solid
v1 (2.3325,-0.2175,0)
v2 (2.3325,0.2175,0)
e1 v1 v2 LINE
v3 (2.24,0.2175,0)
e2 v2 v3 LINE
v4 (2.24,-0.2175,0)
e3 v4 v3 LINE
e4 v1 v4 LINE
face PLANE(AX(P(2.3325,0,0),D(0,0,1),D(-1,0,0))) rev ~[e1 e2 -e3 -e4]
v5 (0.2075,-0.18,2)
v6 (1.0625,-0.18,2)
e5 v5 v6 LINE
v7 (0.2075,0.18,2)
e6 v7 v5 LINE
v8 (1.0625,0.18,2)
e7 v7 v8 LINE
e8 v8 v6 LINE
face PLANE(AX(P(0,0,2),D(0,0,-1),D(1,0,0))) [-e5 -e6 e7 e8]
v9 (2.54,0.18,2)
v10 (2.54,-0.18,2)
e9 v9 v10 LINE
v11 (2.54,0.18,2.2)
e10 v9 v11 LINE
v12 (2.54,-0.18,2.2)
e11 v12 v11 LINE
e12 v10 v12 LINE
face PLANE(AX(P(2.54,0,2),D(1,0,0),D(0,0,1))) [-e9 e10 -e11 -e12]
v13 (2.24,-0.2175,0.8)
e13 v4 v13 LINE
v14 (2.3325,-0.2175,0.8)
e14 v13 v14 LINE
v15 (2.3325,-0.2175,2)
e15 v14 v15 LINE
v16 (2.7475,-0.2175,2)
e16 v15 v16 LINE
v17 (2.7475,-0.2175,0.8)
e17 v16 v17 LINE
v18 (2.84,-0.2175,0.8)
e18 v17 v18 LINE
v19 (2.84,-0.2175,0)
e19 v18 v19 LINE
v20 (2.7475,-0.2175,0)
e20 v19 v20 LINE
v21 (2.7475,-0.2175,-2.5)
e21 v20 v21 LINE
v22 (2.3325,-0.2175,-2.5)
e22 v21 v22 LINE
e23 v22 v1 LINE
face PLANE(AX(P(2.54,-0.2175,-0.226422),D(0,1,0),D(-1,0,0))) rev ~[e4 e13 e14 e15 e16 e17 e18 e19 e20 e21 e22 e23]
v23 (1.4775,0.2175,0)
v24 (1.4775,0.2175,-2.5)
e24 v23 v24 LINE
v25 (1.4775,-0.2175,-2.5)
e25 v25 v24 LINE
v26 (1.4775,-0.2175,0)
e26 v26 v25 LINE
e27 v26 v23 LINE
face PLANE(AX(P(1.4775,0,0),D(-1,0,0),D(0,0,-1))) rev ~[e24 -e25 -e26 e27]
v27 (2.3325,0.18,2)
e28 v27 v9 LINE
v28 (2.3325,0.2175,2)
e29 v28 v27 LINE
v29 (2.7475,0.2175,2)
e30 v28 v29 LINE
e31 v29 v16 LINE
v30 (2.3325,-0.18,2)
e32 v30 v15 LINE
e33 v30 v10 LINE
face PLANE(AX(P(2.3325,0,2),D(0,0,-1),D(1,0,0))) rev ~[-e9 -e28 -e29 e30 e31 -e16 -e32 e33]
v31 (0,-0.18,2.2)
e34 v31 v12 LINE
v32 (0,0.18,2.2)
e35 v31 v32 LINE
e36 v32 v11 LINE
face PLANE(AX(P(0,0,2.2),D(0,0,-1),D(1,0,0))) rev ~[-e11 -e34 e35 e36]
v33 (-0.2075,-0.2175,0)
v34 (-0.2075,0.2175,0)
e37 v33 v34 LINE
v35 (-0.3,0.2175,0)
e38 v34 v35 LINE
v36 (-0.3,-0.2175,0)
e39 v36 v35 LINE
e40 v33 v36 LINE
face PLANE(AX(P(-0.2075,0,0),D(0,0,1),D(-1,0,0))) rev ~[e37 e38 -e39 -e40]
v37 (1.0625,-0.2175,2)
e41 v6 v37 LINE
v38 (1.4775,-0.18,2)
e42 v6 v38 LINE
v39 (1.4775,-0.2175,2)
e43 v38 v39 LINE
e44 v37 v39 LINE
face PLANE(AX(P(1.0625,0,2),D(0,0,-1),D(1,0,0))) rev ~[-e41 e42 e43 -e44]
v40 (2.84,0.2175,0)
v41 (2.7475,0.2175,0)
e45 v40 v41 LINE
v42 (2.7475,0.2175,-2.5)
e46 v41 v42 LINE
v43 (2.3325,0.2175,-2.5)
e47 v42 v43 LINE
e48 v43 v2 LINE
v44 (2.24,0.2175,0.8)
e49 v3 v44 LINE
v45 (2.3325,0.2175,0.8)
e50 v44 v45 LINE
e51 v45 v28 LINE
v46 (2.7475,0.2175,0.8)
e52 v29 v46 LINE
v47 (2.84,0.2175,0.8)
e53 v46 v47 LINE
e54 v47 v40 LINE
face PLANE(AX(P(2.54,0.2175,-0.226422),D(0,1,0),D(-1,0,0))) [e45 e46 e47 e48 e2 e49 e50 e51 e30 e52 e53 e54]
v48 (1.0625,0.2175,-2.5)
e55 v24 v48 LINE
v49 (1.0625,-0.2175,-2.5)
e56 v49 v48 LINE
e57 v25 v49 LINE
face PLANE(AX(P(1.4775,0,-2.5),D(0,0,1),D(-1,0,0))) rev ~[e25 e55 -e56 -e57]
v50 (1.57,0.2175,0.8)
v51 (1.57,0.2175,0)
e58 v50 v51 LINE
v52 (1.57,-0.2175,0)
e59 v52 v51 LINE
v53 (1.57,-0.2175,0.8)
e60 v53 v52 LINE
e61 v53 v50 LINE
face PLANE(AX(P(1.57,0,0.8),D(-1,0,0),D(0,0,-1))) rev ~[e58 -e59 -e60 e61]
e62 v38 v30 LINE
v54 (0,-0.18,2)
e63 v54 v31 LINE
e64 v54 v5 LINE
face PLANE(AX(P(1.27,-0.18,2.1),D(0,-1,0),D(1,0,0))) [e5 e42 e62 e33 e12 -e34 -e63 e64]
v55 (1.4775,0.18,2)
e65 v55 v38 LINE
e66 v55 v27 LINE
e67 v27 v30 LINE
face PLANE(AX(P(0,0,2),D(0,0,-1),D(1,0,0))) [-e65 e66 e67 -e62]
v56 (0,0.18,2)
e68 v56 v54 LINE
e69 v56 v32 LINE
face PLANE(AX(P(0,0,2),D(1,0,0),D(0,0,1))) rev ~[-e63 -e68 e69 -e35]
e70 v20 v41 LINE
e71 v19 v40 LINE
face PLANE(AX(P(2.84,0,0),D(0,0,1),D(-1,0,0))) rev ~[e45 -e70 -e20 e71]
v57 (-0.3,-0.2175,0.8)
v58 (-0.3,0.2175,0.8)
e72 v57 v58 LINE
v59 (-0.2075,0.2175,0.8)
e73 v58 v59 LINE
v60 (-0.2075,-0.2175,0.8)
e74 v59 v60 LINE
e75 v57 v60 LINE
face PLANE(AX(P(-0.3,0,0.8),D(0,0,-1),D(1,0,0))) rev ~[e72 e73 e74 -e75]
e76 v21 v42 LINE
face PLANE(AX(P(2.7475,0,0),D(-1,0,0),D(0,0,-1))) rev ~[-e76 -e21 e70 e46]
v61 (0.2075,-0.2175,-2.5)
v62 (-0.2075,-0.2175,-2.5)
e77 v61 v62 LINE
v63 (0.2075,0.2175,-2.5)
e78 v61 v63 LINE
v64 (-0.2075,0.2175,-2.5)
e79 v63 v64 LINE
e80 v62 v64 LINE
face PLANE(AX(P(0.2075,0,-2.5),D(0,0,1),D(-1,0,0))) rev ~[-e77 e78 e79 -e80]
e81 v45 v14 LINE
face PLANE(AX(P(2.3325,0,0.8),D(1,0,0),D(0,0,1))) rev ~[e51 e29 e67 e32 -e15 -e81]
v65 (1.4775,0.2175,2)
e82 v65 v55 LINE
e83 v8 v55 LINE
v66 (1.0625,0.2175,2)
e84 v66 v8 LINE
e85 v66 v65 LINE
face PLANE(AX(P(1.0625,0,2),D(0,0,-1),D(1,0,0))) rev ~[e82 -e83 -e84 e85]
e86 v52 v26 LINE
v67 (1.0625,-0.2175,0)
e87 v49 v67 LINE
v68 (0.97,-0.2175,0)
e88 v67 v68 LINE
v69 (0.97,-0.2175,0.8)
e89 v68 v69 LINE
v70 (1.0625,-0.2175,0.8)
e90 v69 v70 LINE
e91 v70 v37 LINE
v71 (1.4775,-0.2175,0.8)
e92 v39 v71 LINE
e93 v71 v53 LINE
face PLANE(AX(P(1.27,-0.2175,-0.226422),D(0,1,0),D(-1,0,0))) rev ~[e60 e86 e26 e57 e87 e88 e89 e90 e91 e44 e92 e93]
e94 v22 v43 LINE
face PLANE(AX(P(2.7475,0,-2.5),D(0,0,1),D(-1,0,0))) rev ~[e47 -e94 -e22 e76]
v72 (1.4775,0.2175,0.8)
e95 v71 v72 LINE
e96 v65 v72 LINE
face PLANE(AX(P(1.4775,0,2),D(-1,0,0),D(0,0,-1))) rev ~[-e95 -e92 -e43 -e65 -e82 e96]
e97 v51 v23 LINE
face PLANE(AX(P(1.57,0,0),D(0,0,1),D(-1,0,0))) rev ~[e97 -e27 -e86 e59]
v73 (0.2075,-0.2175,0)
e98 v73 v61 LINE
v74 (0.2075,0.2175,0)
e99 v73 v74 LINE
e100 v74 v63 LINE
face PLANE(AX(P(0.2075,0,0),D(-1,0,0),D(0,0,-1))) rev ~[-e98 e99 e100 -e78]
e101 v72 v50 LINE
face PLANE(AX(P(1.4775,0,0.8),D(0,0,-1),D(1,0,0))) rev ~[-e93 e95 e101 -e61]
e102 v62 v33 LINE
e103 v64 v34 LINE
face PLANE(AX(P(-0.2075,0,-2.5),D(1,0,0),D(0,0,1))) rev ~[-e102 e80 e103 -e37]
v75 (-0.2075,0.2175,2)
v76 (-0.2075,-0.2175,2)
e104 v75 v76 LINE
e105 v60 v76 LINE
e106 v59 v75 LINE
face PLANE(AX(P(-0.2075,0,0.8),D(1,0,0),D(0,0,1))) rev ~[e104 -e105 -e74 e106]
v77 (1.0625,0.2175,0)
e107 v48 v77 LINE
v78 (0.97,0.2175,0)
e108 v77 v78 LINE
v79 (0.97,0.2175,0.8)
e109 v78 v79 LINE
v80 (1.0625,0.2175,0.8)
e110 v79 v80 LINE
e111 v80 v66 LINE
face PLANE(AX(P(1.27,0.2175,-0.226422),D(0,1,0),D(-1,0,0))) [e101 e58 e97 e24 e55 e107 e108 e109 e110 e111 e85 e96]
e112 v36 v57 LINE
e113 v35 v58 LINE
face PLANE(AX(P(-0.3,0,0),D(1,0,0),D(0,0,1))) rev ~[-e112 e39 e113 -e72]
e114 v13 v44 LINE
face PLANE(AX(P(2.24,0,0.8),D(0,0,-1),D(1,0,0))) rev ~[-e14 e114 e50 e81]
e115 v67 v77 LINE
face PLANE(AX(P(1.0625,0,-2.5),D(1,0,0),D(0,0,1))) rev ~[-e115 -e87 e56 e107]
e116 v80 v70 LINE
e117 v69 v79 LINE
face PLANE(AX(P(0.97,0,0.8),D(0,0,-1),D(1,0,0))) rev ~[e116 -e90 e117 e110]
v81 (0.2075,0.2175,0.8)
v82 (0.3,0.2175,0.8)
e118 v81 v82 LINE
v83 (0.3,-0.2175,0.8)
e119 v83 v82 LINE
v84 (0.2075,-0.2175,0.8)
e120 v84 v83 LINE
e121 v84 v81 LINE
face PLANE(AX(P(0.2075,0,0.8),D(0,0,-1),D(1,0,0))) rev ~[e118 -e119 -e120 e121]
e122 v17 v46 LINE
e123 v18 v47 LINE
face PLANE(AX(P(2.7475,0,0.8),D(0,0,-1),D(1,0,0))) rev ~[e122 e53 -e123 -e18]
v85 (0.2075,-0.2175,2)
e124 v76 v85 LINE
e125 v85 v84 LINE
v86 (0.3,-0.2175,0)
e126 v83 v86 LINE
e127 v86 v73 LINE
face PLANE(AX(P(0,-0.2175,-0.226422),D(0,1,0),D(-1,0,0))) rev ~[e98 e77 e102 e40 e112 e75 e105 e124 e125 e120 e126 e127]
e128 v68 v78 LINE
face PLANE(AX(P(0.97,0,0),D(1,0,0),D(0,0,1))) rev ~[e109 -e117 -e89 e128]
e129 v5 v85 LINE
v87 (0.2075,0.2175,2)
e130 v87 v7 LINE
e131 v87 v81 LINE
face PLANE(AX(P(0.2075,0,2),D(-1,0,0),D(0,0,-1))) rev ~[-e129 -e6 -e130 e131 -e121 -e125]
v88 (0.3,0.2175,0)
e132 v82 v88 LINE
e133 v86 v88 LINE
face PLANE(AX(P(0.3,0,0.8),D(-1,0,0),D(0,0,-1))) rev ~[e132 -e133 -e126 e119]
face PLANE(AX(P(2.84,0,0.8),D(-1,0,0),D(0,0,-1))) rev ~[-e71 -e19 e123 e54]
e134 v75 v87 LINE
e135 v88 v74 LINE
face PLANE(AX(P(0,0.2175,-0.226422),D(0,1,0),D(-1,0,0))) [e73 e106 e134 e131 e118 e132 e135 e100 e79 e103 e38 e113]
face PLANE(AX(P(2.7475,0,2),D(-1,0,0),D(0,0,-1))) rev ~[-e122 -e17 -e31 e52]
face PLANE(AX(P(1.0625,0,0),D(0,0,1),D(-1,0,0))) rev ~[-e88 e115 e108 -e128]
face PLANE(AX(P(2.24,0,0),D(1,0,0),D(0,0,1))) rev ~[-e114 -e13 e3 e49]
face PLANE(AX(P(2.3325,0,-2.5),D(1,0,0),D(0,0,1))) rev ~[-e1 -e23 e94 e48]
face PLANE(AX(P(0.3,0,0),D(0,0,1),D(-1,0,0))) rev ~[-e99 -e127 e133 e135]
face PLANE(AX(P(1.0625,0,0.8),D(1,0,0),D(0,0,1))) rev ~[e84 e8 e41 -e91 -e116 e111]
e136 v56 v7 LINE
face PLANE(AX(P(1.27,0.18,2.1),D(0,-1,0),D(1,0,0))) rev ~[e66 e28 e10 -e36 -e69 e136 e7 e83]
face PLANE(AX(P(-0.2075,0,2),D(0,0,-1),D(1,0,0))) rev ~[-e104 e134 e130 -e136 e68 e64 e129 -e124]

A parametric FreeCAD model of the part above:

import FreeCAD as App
import Part
import Sketcher

V = App.Vector

doc = App.newDocument("Part")
body = doc.addObject("PartDesign::Body", "Body")

sketch1 = body.newObject("Sketcher::SketchObject", "Sketch")
sketch1.AttachmentSupport = (doc.getObject("XZ_Plane"), [""])
sketch1.MapMode = "FlatFace"
sketch1.addGeometry([
    Part.LineSegment(V(0, 2.2, 0), V(0, 2, 0)),
    Part.LineSegment(V(0, 2, 0), V(2.54, 2, 0)),
    Part.LineSegment(V(2.54, 2, 0), V(2.54, 2.2, 0)),
    Part.LineSegment(V(2.54, 2.2, 0), V(0, 2.2, 0)),
], False)
sketch1.addConstraint([
    Sketcher.Constraint("Coincident", 0, 2, 1, 1),
    Sketcher.Constraint("Coincident", 1, 2, 2, 1),
    Sketcher.Constraint("Coincident", 2, 2, 3, 1),
    Sketcher.Constraint("Coincident", 3, 2, 0, 1),
    Sketcher.Constraint("Vertical", 0),
    Sketcher.Constraint("Horizontal", 1),
    Sketcher.Constraint("Vertical", 2),
    Sketcher.Constraint("Horizontal", 3),
    Sketcher.Constraint("PointOnObject", 0, 2, -2),
    Sketcher.Constraint("DistanceY", 0, 2, 0, 1, 0.2),
    Sketcher.Constraint("DistanceY", -1, 1, 0, 2, 2.0),
    Sketcher.Constraint("DistanceX", 1, 1, 1, 2, 2.54),
])
pad1 = body.newObject("PartDesign::Pad", "Pad")
pad1.Profile = sketch1
pad1.Length = 0.36
pad1.Midplane = True

sketch2 = body.newObject("Sketcher::SketchObject", "Sketch001")
sketch2.AttachmentSupport = (doc.getObject("XZ_Plane"), [""])
sketch2.MapMode = "FlatFace"
sketch2.addGeometry([
    Part.LineSegment(V(0.21, 0.8, 0), V(0.21, 2, 0)),
    Part.LineSegment(V(0.21, 2, 0), V(-0.21, 2, 0)),
    Part.LineSegment(V(-0.21, 2, 0), V(-0.21, 0.8, 0)),
    Part.LineSegment(V(-0.21, 0.8, 0), V(-0.3, 0.8, 0)),
    Part.LineSegment(V(-0.3, 0.8, 0), V(-0.3, 0, 0)),
    Part.LineSegment(V(-0.3, 0, 0), V(-0.21, 0, 0)),
    Part.LineSegment(V(-0.21, 0, 0), V(-0.21, -2.5, 0)),
    Part.LineSegment(V(-0.21, -2.5, 0), V(0.21, -2.5, 0)),
    Part.LineSegment(V(0.21, -2.5, 0), V(0.21, 0, 0)),
    Part.LineSegment(V(0.21, 0, 0), V(0.3, 0, 0)),
    Part.LineSegment(V(0.3, 0, 0), V(0.3, 0.8, 0)),
    Part.LineSegment(V(0.3, 0.8, 0), V(0.21, 0.8, 0)),
], False)
sketch2.addConstraint([
    Sketcher.Constraint("Coincident", 0, 2, 1, 1),
    Sketcher.Constraint("Coincident", 1, 2, 2, 1),
    Sketcher.Constraint("Coincident", 2, 2, 3, 1),
    Sketcher.Constraint("Coincident", 3, 2, 4, 1),
    Sketcher.Constraint("Coincident", 4, 2, 5, 1),
    Sketcher.Constraint("Coincident", 5, 2, 6, 1),
    Sketcher.Constraint("Coincident", 6, 2, 7, 1),
    Sketcher.Constraint("Coincident", 7, 2, 8, 1),
    Sketcher.Constraint("Coincident", 8, 2, 9, 1),
    Sketcher.Constraint("Coincident", 9, 2, 10, 1),
    Sketcher.Constraint("Coincident", 10, 2, 11, 1),
    Sketcher.Constraint("Coincident", 11, 2, 0, 1),
    Sketcher.Constraint("Vertical", 0),
    Sketcher.Constraint("Horizontal", 1),
    Sketcher.Constraint("Vertical", 2),
    Sketcher.Constraint("Horizontal", 3),
    Sketcher.Constraint("Vertical", 4),
    Sketcher.Constraint("Horizontal", 5),
    Sketcher.Constraint("Vertical", 6),
    Sketcher.Constraint("Horizontal", 7),
    Sketcher.Constraint("Vertical", 8),
    Sketcher.Constraint("Horizontal", 9),
    Sketcher.Constraint("Vertical", 10),
    Sketcher.Constraint("Horizontal", 11),
    Sketcher.Constraint("Symmetric", 5, 2, 8, 2, -1, 1),
    Sketcher.Constraint("Symmetric", 4, 2, 9, 2, -2),
    Sketcher.Constraint("Symmetric", 2, 2, 11, 2, -2),
    Sketcher.Constraint("Vertical", 2, 2, 5, 2),
    Sketcher.Constraint("DistanceY", 0, 1, 0, 2, 1.2),
    Sketcher.Constraint("DistanceY", 4, 2, 4, 1, 0.8),
    Sketcher.Constraint("DistanceY", 6, 2, 6, 1, 2.5),
    Sketcher.Constraint("DistanceX", 3, 2, -1, 1, 0.3),
    Sketcher.Constraint("DistanceX", 1, 2, 1, 1, 0.415),
])
pad2 = body.newObject("PartDesign::Pad", "Pad001")
pad2.Profile = sketch2
pad2.Length = 0.435
pad2.Midplane = True
doc.recompute()

linearpattern = body.newObject("PartDesign::LinearPattern", "LinearPattern")
linearpattern.Originals = [pad2]
linearpattern.Direction = (doc.getObject("X_Axis"), [""])
linearpattern.Mode = "offset"
linearpattern.Offset = 1.27
linearpattern.Occurrences = 3
body.Tip = linearpattern

doc.recompute()
